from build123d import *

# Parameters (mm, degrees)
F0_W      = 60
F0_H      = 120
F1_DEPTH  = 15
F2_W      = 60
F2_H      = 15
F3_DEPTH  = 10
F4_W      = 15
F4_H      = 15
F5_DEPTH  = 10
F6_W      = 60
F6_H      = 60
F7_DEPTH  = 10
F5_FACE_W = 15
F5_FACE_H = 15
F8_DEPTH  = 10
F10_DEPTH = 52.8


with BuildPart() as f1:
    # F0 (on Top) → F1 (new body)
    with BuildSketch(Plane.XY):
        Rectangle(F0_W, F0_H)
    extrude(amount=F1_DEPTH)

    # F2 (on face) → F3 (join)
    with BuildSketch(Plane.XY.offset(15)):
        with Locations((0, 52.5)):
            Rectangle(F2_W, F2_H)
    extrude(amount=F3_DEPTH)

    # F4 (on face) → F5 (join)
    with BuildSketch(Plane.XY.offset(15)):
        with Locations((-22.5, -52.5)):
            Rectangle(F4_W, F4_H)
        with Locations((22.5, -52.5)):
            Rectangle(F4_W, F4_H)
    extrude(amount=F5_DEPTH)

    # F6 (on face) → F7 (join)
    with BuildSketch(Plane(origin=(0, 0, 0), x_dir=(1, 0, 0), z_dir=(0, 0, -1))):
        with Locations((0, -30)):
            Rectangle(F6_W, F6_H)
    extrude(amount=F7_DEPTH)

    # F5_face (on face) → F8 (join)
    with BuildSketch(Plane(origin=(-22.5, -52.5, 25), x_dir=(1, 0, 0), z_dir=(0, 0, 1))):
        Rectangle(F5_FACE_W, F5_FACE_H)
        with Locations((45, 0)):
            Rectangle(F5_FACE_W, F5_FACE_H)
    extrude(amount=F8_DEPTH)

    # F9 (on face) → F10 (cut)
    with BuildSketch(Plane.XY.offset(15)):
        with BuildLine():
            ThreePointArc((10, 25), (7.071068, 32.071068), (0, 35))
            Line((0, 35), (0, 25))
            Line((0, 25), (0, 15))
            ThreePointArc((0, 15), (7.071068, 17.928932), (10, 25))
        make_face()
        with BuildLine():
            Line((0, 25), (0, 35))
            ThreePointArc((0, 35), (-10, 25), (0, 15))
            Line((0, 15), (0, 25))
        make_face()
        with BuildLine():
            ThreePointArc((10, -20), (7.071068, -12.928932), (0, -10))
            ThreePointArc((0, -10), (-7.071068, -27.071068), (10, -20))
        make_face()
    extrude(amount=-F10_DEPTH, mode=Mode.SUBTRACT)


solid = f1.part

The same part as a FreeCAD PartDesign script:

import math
import FreeCAD as App
import Part
import Sketcher
from FreeCAD import Vector


def add_polygon(sketch, points):
    """Adds a closed chain of lines whose ends are joined by coincident constraints."""
    first, n = sketch.GeometryCount, len(points)
    for a, b in zip(points, points[1:] + points[:1]):
        sketch.addGeometry(Part.LineSegment(App.Vector(*a, 0), App.Vector(*b, 0)), False)
    for i in range(n):
        sketch.addConstraint(Sketcher.Constraint("Coincident", first + i, 2, first + (i + 1) % n, 1))

doc = App.newDocument("Part")
body = doc.addObject("PartDesign::Body", "Body")

sketch1 = body.newObject("Sketcher::SketchObject", "Sketch")
sketch1.AttachmentSupport = (doc.getObject("XY_Plane"), [""])
sketch1.MapMode = "FlatFace"
add_polygon(sketch1, [(-30, 60), (-30, -60), (30, -60), (30, 60)])
sketch1.addConstraint([
    Sketcher.Constraint("Vertical", 0),
    Sketcher.Constraint("Horizontal", 1),
    Sketcher.Constraint("Vertical", 2),
    Sketcher.Constraint("Horizontal", 3),
    Sketcher.Constraint("Symmetric", 0, 2, 2, 2, -1, 1),
    Sketcher.Constraint("DistanceX", 1, 1, 1, 2, 60.0),
    Sketcher.Constraint("DistanceY", 0, 2, 0, 1, 120.0),
])
pad1 = body.newObject("PartDesign::Pad", "Pad")
pad1.Profile = sketch1
pad1.Length = 15

sketch2 = body.newObject("Sketcher::SketchObject", "Sketch001")
sketch2.AttachmentSupport = (doc.getObject("XY_Plane"), [""])
sketch2.MapMode = "FlatFace"
sketch2.AttachmentOffset = App.Placement(Vector(0, 0, 15), App.Rotation())
add_polygon(sketch2, [(-30, 60), (-30, 45), (30, 45), (30, 60)])
sketch2.addConstraint([
    Sketcher.Constraint("Vertical", 0),
    Sketcher.Constraint("Horizontal", 1),
    Sketcher.Constraint("Vertical", 2),
    Sketcher.Constraint("Horizontal", 3),
    Sketcher.Constraint("DistanceX", 1, 1, 1, 2, 60.0),
    Sketcher.Constraint("DistanceY", 0, 2, 0, 1, 15.0),
    Sketcher.Constraint("DistanceX", 0, 2, -1, 1, 30.0),
    Sketcher.Constraint("DistanceY", -1, 1, 0, 2, 45.0),
])
pad2 = body.newObject("PartDesign::Pad", "Pad001")
pad2.Profile = sketch2
pad2.Length = 10

sketch3 = body.newObject("Sketcher::SketchObject", "Sketch002")
sketch3.AttachmentSupport = (doc.getObject("XY_Plane"), [""])
sketch3.MapMode = "FlatFace"
sketch3.AttachmentOffset = App.Placement(Vector(0, 0, 15), App.Rotation())
add_polygon(sketch3, [(-30, -45), (-30, -60), (-15, -60), (-15, -45)])
add_polygon(sketch3, [(15, -45), (15, -60), (30, -60), (30, -45)])
sketch3.addConstraint([
    Sketcher.Constraint("Vertical", 0),
    Sketcher.Constraint("Horizontal", 1),
    Sketcher.Constraint("Vertical", 2),
    Sketcher.Constraint("Horizontal", 3),
    Sketcher.Constraint("Vertical", 4),
    Sketcher.Constraint("Horizontal", 5),
    Sketcher.Constraint("Vertical", 6),
    Sketcher.Constraint("Horizontal", 7),
    Sketcher.Constraint("Symmetric", 1, 2, 4, 2, -2),
    Sketcher.Constraint("Symmetric", 3, 2, 6, 2, -2),
    Sketcher.Constraint("Equal", 7, 0),
    Sketcher.Constraint("DistanceX", 1, 1, 1, 2, 15.0),
    Sketcher.Constraint("DistanceX", 0, 2, -1, 1, 30.0),
    Sketcher.Constraint("DistanceY", 0, 2, -1, 1, 60.0),
])
pad3 = body.newObject("PartDesign::Pad", "Pad002")
pad3.Profile = sketch3
pad3.Length = 10

sketch4 = body.newObject("Sketcher::SketchObject", "Sketch003")
sketch4.AttachmentSupport = (doc.getObject("XY_Plane"), [""])
sketch4.MapMode = "FlatFace"
add_polygon(sketch4, [(-30, 0), (-30, 60), (30, 60), (30, 0)])
sketch4.addConstraint([
    Sketcher.Constraint("Vertical", 0),
    Sketcher.Constraint("Horizontal", 1),
    Sketcher.Constraint("Vertical", 2),
    Sketcher.Constraint("Horizontal", 3),
    Sketcher.Constraint("Symmetric", 2, 2, 3, 2, -1, 1),
    Sketcher.Constraint("Equal", 3, 0),
    Sketcher.Constraint("DistanceX", 1, 1, 1, 2, 60.0),
])
pad4 = body.newObject("PartDesign::Pad", "Pad003")
pad4.Profile = sketch4
pad4.Length = 10
pad4.Reversed = True

sketch5 = body.newObject("Sketcher::SketchObject", "Sketch004")
sketch5.AttachmentSupport = (doc.getObject("XY_Plane"), [""])
sketch5.MapMode = "FlatFace"
sketch5.AttachmentOffset = App.Placement(Vector(0, 0, 25), App.Rotation())
add_polygon(sketch5, [(-30, -45), (-30, -60), (-15, -60), (-15, -45)])
add_polygon(sketch5, [(15, -45), (15, -60), (30, -60), (30, -45)])
sketch5.addConstraint([
    Sketcher.Constraint("Vertical", 0),
    Sketcher.Constraint("Horizontal", 1),
    Sketcher.Constraint("Vertical", 2),
    Sketcher.Constraint("Horizontal", 3),
    Sketcher.Constraint("Vertical", 4),
    Sketcher.Constraint("Horizontal", 5),
    Sketcher.Constraint("Vertical", 6),
    Sketcher.Constraint("Horizontal", 7),
    Sketcher.Constraint("Symmetric", 1, 2, 4, 2, -2),
    Sketcher.Constraint("Symmetric", 3, 2, 6, 2, -2),
    Sketcher.Constraint("Equal", 7, 0),
    Sketcher.Constraint("DistanceX", 1, 1, 1, 2, 15.0),
    Sketcher.Constraint("DistanceX", 0, 2, -1, 1, 30.0),
    Sketcher.Constraint("DistanceY", 0, 2, -1, 1, 60.0),
])
pad5 = body.newObject("PartDesign::Pad", "Pad004")
pad5.Profile = sketch5
pad5.Length = 10

sketch6 = body.newObject("Sketcher::SketchObject", "Sketch005")
sketch6.AttachmentSupport = (doc.getObject("XY_Plane"), [""])
sketch6.MapMode = "FlatFace"
sketch6.AttachmentOffset = App.Placement(Vector(0, 0, 15), App.Rotation())
sketch6.addGeometry([
    Part.ArcOfCircle(Part.Circle(Vector(0, 25, 0), Vector(0, 0, 1), 10), math.radians(0), math.radians(90)),
    Part.ArcOfCircle(Part.Circle(Vector(0, 25, 0), Vector(0, 0, 1), 10), math.radians(90), math.radians(270)),
    Part.ArcOfCircle(Part.Circle(Vector(0, 25, 0), Vector(0, 0, 1), 10), math.radians(-90), math.radians(0)),
    Part.ArcOfCircle(Part.Circle(Vector(0, -20, 0), Vector(0, 0, 1), 10), math.radians(0), math.radians(90)),
    Part.ArcOfCircle(Part.Circle(Vector(0, -20, 0), Vector(0, 0, 1), 10), math.radians(90), math.radians(360)),
], False)
sketch6.addConstraint([
    Sketcher.Constraint("Tangent", 0, 2, 1, 1),
    Sketcher.Constraint("Tangent", 1, 2, 2, 1),
    Sketcher.Constraint("Tangent", 2, 2, 0, 1),
    Sketcher.Constraint("Tangent", 3, 1, 4, 2),
    Sketcher.Constraint("Coincident", 4, 1, 3, 2),
    Sketcher.Constraint("Equal", 2, 3),
    Sketcher.Constraint("PointOnObject", 0, 3, -2),
    Sketcher.Constraint("PointOnObject", 3, 3, -2),
    Sketcher.Constraint("PointOnObject", 0, 2, -2),
    Sketcher.Constraint("PointOnObject", 1, 2, -2),
    Sketcher.Constraint("PointOnObject", 4, 1, -2),
    Sketcher.Constraint("Horizontal", 1, 3, 2, 2),
    Sketcher.Constraint("Horizontal", 4, 3, 3, 1),
    Sketcher.Constraint("Radius", 0, 9.999999),
    Sketcher.Constraint("DistanceY", -1, 1, 0, 3, 25.000001),
    Sketcher.Constraint("DistanceY", 3, 3, -1, 1, 19.999999),
])
pocket1 = body.newObject("PartDesign::Pocket", "Pocket")
pocket1.Profile = sketch6
pocket1.Length = 52.8

doc.recompute()
